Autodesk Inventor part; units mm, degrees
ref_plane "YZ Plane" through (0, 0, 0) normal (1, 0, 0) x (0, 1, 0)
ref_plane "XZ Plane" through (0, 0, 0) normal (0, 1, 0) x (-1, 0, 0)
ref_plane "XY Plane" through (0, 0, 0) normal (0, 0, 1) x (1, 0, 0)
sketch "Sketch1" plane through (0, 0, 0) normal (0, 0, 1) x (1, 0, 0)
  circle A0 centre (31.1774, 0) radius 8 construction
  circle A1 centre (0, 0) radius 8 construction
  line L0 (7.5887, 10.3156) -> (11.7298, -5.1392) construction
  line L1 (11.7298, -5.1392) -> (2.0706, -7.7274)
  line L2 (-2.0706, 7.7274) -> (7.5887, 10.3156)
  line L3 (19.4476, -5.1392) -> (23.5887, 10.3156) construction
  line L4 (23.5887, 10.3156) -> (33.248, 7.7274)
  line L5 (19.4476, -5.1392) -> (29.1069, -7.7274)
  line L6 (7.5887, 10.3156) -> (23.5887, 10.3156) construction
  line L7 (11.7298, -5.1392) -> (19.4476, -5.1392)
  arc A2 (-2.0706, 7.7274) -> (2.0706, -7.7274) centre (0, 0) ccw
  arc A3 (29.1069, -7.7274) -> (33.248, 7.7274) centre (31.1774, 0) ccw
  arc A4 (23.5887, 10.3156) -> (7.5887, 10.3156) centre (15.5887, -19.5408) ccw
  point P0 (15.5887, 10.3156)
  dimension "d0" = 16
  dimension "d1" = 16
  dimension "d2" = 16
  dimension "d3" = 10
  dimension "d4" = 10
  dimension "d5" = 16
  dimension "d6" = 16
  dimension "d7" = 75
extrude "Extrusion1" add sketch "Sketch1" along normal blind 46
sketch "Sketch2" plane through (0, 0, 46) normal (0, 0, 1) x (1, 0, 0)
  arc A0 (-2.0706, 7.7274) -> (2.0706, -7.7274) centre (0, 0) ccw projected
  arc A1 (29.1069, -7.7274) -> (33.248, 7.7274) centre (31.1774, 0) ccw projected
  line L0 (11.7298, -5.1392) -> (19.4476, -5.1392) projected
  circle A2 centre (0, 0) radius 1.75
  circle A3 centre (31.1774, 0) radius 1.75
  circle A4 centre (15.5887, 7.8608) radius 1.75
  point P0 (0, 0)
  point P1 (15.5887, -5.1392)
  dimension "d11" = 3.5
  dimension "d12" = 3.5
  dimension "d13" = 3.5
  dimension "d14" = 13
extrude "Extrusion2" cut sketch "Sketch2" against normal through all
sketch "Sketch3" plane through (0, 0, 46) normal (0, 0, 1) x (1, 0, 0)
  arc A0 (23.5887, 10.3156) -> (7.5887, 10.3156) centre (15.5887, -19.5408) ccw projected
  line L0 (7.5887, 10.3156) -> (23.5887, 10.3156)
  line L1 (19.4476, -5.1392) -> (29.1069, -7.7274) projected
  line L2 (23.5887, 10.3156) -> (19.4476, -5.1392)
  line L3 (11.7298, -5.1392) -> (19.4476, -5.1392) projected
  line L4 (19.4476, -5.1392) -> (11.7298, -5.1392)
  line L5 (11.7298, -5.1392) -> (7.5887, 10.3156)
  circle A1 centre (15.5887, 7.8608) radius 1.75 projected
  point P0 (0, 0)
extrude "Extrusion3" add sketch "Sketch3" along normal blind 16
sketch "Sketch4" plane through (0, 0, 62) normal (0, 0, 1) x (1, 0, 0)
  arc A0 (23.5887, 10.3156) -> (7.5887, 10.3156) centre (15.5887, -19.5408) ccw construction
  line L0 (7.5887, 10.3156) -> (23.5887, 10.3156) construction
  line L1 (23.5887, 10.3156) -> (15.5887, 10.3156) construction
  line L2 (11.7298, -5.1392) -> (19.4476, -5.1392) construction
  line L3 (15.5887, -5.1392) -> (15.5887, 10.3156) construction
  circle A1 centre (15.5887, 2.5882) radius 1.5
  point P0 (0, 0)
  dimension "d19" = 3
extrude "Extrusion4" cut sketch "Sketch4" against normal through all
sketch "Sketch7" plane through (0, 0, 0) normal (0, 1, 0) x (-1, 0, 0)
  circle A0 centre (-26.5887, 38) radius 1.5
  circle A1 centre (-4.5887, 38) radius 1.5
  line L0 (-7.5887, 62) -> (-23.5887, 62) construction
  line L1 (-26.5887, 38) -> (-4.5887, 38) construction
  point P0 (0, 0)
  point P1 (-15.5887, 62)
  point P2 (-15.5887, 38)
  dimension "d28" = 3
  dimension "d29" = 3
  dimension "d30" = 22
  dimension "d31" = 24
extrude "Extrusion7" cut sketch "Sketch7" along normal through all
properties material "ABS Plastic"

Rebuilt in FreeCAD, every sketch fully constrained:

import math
import FreeCAD as App
import Part
import Sketcher
from FreeCAD import Vector
Q = App.Units.Quantity

doc = App.newDocument("Part")
body = doc.addObject("PartDesign::Body", "Body")

# Sketch on XY plane
sketch1 = body.newObject("Sketcher::SketchObject", "Sketch")
sketch1.AttachmentSupport = (doc.getObject("XY_Plane"), [""])
sketch1.MapMode = "FlatFace"
sketch1.addGeometry([
    Part.LineSegment(Vector(2, -8, 0), Vector(12, -5, 0)),  # 0
    Part.LineSegment(Vector(12, -5, 0), Vector(19, -5, 0)),  # 1
    Part.LineSegment(Vector(19, -5, 0), Vector(29, -8, 0)),  # 2
    Part.ArcOfCircle(Part.Circle(Vector(31, 0, 0), Vector(0, 0, 1), 8), math.radians(-105), math.radians(75)),  # 3
    Part.LineSegment(Vector(33, 8, 0), Vector(24, 10, 0)),  # 4
    Part.ArcOfCircle(Part.Circle(Vector(16, -20, 0), Vector(0, 0, 1), 31), math.radians(75), math.radians(105)),  # 5
    Part.LineSegment(Vector(8, 10, 0), Vector(-2, 8, 0)),  # 6
    Part.ArcOfCircle(Part.Circle(Vector(0, 0, 0), Vector(0, 0, 1), 8), math.radians(105), math.radians(285)),  # 7
], False)
sketch1.addConstraint([
    Sketcher.Constraint("Coincident", 0, 2, 1, 1),
    Sketcher.Constraint("Coincident", 1, 2, 2, 1),
    Sketcher.Constraint("Tangent", 2, 2, 3, 1),
    Sketcher.Constraint("Tangent", 3, 2, 4, 1),
    Sketcher.Constraint("Tangent", 4, 2, 5, 1),
    Sketcher.Constraint("Tangent", 5, 2, 6, 1),
    Sketcher.Constraint("Tangent", 6, 2, 7, 1),
    Sketcher.Constraint("Tangent", 7, 2, 0, 1),
    Sketcher.Constraint("Horizontal", 1),
    Sketcher.Constraint("Coincident", 7, 3, -1, 1),
    Sketcher.Constraint("Equal", 3, 7),
    Sketcher.Constraint("PointOnObject", 3, 3, -1),
    Sketcher.Constraint("Parallel", 2, 4),
    Sketcher.Constraint("Parallel", 0, 6),
    Sketcher.Constraint("Horizontal", 4, 2, 5, 2),
    Sketcher.Constraint("Equal", 2, 4),
    Sketcher.Constraint("Radius", 3, Q("8 mm")),
    Sketcher.Constraint("Distance", 0, Q("10 mm")),
    Sketcher.Constraint("DistanceX", 5, 2, 4, 2, Q("16 mm")),
    Sketcher.Constraint("Angle", 0, Q("15.0001 deg")),
])
pad1 = body.newObject("PartDesign::Pad", "Pad")
pad1.Profile = sketch1
pad1.Length = 46

# Sketch on XY plane
sketch2 = body.newObject("Sketcher::SketchObject", "Sketch001")
sketch2.AttachmentSupport = (doc.getObject("XY_Plane"), [""])
sketch2.MapMode = "FlatFace"
sketch2.AttachmentOffset = App.Placement(Vector(0, 0, 46), App.Rotation())
sketch2.addGeometry([
    Part.Circle(Vector(0, 0, 0), Vector(0, 0, 1), 1.8),
    Part.Circle(Vector(31.2, 0, 0), Vector(0, 0, 1), 1.8),
    Part.Circle(Vector(15.6, 7.9, 0), Vector(0, 0, 1), 1.8),
], False)
sketch2.addConstraint([
    Sketcher.Constraint("Coincident", 0, 3, -1, 1),
    Sketcher.Constraint("Equal", 0, 1),
    Sketcher.Constraint("Equal", 1, 2),
    Sketcher.Constraint("PointOnObject", 1, 3, -1),
    Sketcher.Constraint("Diameter", 0, Q("3.5 mm")),
    Sketcher.Constraint("DistanceX", -1, 1, 1, 3, Q("31.1774 mm")),
    Sketcher.Constraint("DistanceX", -1, 1, 2, 3, Q("15.5887 mm")),
    Sketcher.Constraint("DistanceY", -1, 1, 2, 3, Q("7.8608 mm")),
])
pocket1 = body.newObject("PartDesign::Pocket", "Pocket")
pocket1.Profile = sketch2
pocket1.Type = "ThroughAll"

# Sketch on XY plane
sketch3 = body.newObject("Sketcher::SketchObject", "Sketch002")
sketch3.AttachmentSupport = (doc.getObject("XY_Plane"), [""])
sketch3.MapMode = "FlatFace"
sketch3.AttachmentOffset = App.Placement(Vector(0, 0, 46), App.Rotation())
sketch3.addGeometry([
    Part.ArcOfCircle(Part.Circle(Vector(15.6, -19.5, 0), Vector(0, 0, 1), 30.9), math.radians(75), math.radians(105)),  # 0
    Part.LineSegment(Vector(7.6, 10.3, 0), Vector(11.7, -5.1, 0)),  # 1
    Part.LineSegment(Vector(11.7, -5.1, 0), Vector(19.4, -5.1, 0)),  # 2
    Part.LineSegment(Vector(19.4, -5.1, 0), Vector(23.6, 10.3, 0)),  # 3
    Part.Circle(Vector(15.6, 7.9, 0), Vector(0, 0, 1), 1.8),  # 4
], False)
sketch3.addConstraint([
    Sketcher.Constraint("Coincident", 0, 2, 1, 1),
    Sketcher.Constraint("Coincident", 1, 2, 2, 1),
    Sketcher.Constraint("Coincident", 2, 2, 3, 1),
    Sketcher.Constraint("Coincident", 3, 2, 0, 1),
    Sketcher.Constraint("Horizontal", 2),
    Sketcher.Constraint("Horizontal", 0, 2, 3, 2),
    Sketcher.Constraint("Vertical", 0, 3, 4, 3),
    Sketcher.Constraint("Equal", 1, 3),
    Sketcher.Constraint("Diameter", 4, Q("3.5 mm")),
    Sketcher.Constraint("Angle", 1, Q("-75 deg")),
    Sketcher.Constraint("Distance", 1, Q("16 mm")),
    Sketcher.Constraint("DistanceX", 0, 2, 4, 3, Q("8 mm")),
    Sketcher.Constraint("DistanceY", 1, 2, 4, 3, Q("13 mm")),
    Sketcher.Constraint("Radius", 0, Q("30.9096 mm")),
    Sketcher.Constraint("DistanceX", -1, 1, 0, 3, Q("15.5887 mm")),
    Sketcher.Constraint("DistanceY", 0, 3, -1, 1, Q("19.5408 mm")),
])
pad2 = body.newObject("PartDesign::Pad", "Pad001")
pad2.Profile = sketch3
pad2.Length = 16

# Sketch on XY plane
sketch4 = body.newObject("Sketcher::SketchObject", "Sketch003")
sketch4.AttachmentSupport = (doc.getObject("XY_Plane"), [""])
sketch4.MapMode = "FlatFace"
sketch4.AttachmentOffset = App.Placement(Vector(0, 0, 62), App.Rotation())
sketch4.addGeometry(Part.Circle(Vector(15.6, 2.6, 0), Vector(0, 0, 1), 1.5), False)
sketch4.addConstraint([
    Sketcher.Constraint("Diameter", 0, Q("3 mm")),
    Sketcher.Constraint("DistanceX", -1, 1, 0, 3, Q("15.5887 mm")),
    Sketcher.Constraint("DistanceY", -1, 1, 0, 3, Q("2.5882 mm")),
])
pocket2 = body.newObject("PartDesign::Pocket", "Pocket001")
pocket2.Profile = sketch4
pocket2.Type = "ThroughAll"

# Sketch on XZ plane
sketch5 = body.newObject("Sketcher::SketchObject", "Sketch004")
sketch5.AttachmentSupport = (doc.getObject("XZ_Plane"), [""])
sketch5.MapMode = "FlatFace"
sketch5.addGeometry([
    Part.Circle(Vector(26.6, 38, 0), Vector(0, 0, 1), 1.5),
    Part.Circle(Vector(4.6, 38, 0), Vector(0, 0, 1), 1.5),
], False)
sketch5.addConstraint([
    Sketcher.Constraint("Equal", 0, 1),
    Sketcher.Constraint("Horizontal", 0, 3, 1, 3),
    Sketcher.Constraint("Diameter", 0, Q("3 mm")),
    Sketcher.Constraint("DistanceX", 1, 3, 0, 3, Q("22 mm")),
    Sketcher.Constraint("DistanceY", -1, 1, 0, 3, Q("38 mm")),
    Sketcher.Constraint("DistanceX", -1, 1, 0, 3, Q("26.5887 mm")),
])
pocket3 = body.newObject("PartDesign::Pocket", "Pocket002")
pocket3.Profile = sketch5
pocket3.Type = "ThroughAll"

doc.recompute()
